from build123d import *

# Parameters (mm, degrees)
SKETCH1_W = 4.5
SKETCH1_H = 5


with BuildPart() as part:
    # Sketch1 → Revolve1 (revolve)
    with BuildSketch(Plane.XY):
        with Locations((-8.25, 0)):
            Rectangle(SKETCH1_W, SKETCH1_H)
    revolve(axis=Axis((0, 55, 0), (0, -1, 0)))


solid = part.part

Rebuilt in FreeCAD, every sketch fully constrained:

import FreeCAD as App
import Part
import Sketcher

V = App.Vector

doc = App.newDocument("Part")
params = doc.addObject("Spreadsheet::Sheet", "Params")
for row, (alias, value) in enumerate([
    ("sketch1_height", "5 mm"),
    ("sketch1_width", "4.5 mm"),
    ("revolution_angle", "360 deg"),
], start=1):
    params.set(f"A{row}", alias)
    params.set(f"B{row}", "=" + value)
    params.setAlias(f"B{row}", alias)

body = doc.addObject("PartDesign::Body", "Body")

sketch1 = doc.addObject("Sketcher::SketchObject", "Sketch")
body.addObject(sketch1)
sketch1.AttachmentSupport = (doc.XY_Plane, [""])
sketch1.MapMode = "FlatFace"
sketch1.addGeometry([
    Part.LineSegment(V(-10.5, 2.5, 0), V(-10.5, -2.5, 0)),
    Part.LineSegment(V(-10.5, -2.5, 0), V(-6, -2.5, 0)),
    Part.LineSegment(V(-6, -2.5, 0), V(-6, 2.5, 0)),
    Part.LineSegment(V(-6, 2.5, 0), V(-10.5, 2.5, 0)),
], False)
sketch1.addConstraint([
    Sketcher.Constraint("Coincident", 0, 2, 1, 1),
    Sketcher.Constraint("Coincident", 1, 2, 2, 1),
    Sketcher.Constraint("Coincident", 2, 2, 3, 1),
    Sketcher.Constraint("Coincident", 3, 2, 0, 1),
    Sketcher.Constraint("Vertical", 0),
    Sketcher.Constraint("Horizontal", 1),
    Sketcher.Constraint("Vertical", 2),
    Sketcher.Constraint("Horizontal", 3),
    Sketcher.Constraint("DistanceY", 0, 2, 0, 1, 5.0),
    Sketcher.Constraint("DistanceX", 1, 1, 1, 2, 4.5),
    Sketcher.Constraint("DistanceX", 1, 2, -1, 1, 6.0),
    Sketcher.Constraint("DistanceY", 0, 2, -1, 1, 2.5),
])
sketch1.setExpression("Constraints[8]", "Params.sketch1_height")
sketch1.setExpression("Constraints[9]", "Params.sketch1_width")
revolution = doc.addObject("PartDesign::Revolution", "Revolution")
body.addObject(revolution)
revolution.Profile = sketch1
revolution.ReferenceAxis = (sketch1, ["V_Axis"])
revolution.setExpression("Angle", "Params.revolution_angle")

doc.recompute()
